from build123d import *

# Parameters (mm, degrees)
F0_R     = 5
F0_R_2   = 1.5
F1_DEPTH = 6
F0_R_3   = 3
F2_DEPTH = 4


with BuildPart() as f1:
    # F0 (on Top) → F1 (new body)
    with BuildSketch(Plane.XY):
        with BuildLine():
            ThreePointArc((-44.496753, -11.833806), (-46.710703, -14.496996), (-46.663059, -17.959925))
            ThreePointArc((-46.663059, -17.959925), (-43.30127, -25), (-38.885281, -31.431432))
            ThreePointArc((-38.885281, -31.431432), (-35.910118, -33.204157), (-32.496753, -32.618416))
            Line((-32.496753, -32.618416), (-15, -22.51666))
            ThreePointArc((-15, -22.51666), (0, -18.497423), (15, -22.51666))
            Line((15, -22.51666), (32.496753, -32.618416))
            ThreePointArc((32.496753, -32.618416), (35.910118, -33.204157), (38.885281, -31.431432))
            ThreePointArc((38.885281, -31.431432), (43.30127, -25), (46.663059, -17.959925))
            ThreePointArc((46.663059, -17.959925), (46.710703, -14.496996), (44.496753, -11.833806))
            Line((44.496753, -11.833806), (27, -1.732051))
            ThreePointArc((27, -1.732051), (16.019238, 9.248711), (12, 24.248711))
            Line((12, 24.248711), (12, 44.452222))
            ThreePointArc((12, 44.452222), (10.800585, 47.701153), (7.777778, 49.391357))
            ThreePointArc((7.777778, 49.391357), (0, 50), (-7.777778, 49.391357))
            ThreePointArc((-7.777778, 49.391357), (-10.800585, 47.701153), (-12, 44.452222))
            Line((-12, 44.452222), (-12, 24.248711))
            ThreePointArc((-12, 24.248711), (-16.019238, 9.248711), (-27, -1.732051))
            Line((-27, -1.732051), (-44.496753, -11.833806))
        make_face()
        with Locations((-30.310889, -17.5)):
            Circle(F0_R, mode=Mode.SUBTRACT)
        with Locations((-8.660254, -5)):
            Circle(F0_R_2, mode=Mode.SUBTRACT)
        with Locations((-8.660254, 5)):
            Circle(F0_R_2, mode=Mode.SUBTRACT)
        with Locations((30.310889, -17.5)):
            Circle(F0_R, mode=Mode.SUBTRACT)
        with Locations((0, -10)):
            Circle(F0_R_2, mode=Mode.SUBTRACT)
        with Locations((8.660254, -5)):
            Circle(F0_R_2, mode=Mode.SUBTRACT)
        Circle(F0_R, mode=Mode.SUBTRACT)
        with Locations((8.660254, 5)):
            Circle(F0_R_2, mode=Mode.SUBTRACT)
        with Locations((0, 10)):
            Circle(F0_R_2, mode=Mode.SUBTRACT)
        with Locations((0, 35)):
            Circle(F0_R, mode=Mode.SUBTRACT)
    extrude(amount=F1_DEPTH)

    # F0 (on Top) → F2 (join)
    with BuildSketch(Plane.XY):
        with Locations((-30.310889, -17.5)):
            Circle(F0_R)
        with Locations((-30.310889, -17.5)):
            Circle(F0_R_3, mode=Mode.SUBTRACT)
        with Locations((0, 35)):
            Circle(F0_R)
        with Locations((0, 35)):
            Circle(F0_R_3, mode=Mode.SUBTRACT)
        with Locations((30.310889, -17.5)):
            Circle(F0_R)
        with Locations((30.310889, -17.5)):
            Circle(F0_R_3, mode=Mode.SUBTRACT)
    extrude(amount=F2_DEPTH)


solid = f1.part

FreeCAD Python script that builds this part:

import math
import FreeCAD as App
import Part
import Sketcher

V = App.Vector
Q = App.Units.Quantity

doc = App.newDocument("Part")
body = doc.addObject("PartDesign::Body", "Body")

# Sketch on XY plane
sketch1 = body.newObject("Sketcher::SketchObject", "Sketch")
sketch1.AttachmentSupport = (doc.getObject("XY_Plane"), [""])
sketch1.MapMode = "FlatFace"
sketch1.addGeometry(Part.ArcOfCircle(Part.Circle(V(-41.996755, -16.163932, 0), V(0, 0, 1), 4.999999), math.radians(119.999988), math.radians(201.050989)), False)
sketch1.addGeometry(Part.ArcOfCircle(Part.Circle(V(0.000004, 0.000002, 0), V(0, 0, 1), 50.000004), math.radians(-158.949018), math.radians(-141.050983)), False)
sketch1.addGeometry(Part.ArcOfCircle(Part.Circle(V(-34.996752, -28.288287, 0), V(0, 0, 1), 5.000001), math.radians(-141.050968), math.radians(-60.000017)), False)
sketch1.addGeometry(Part.LineSegment(V(-32.496753, -32.618416, 0), V(-15, -22.51666, 0)), False)
sketch1.addGeometry(Part.ArcOfCircle(Part.Circle(V(0, -48.497429, 0), V(0, 0, 1), 30.000006), math.radians(60.000006), math.radians(119.999994)), False)
sketch1.addGeometry(Part.LineSegment(V(15, -22.51666, 0), V(32.496753, -32.618416, 0)), False)
sketch1.addGeometry(Part.ArcOfCircle(Part.Circle(V(34.996752, -28.288287, 0), V(0, 0, 1), 5.000001), math.radians(-119.999983), math.radians(-38.949032)), False)
sketch1.addGeometry(Part.ArcOfCircle(Part.Circle(V(-0.000004, 0.000002, 0), V(0, 0, 1), 50.000004), math.radians(-38.949017), math.radians(-21.050982)), False)
sketch1.addGeometry(Part.ArcOfCircle(Part.Circle(V(41.996755, -16.163932, 0), V(0, 0, 1), 4.999999), math.radians(-21.050989), math.radians(60.000012)), False)
sketch1.addGeometry(Part.LineSegment(V(44.496753, -11.833806, 0), V(27, -1.732051, 0)), False)
sketch1.addGeometry(Part.ArcOfCircle(Part.Circle(V(42, 24.248711, 0), V(0, 0, 1), 30), math.radians(-179.999999), math.radians(-120)), False)
sketch1.addGeometry(Part.LineSegment(V(12, 24.248711, 0), V(12, 44.452222, 0)), False)
sketch1.addGeometry(Part.ArcOfCircle(Part.Circle(V(7.000001, 44.452222, 0), V(0, 0, 1), 4.999999), math.radians(-0.000003), math.radians(81.05099)), False)
sketch1.addGeometry(Part.ArcOfCircle(Part.Circle(V(0, 0.000019, 0), V(0, 0, 1), 49.999981), math.radians(81.050978), math.radians(98.949022)), False)
sketch1.addGeometry(Part.ArcOfCircle(Part.Circle(V(-7.000001, 44.452222, 0), V(0, 0, 1), 4.999999), math.radians(98.94901), math.radians(180.000003)), False)
sketch1.addGeometry(Part.LineSegment(V(-12, 44.452222, 0), V(-12, 24.248711, 0)), False)
sketch1.addGeometry(Part.ArcOfCircle(Part.Circle(V(-42, 24.248711, 0), V(0, 0, 1), 30), math.radians(-60), math.radians(-0.000001)), False)
sketch1.addGeometry(Part.LineSegment(V(-27, -1.732051, 0), V(-44.496753, -11.833806, 0)), False)
sketch1.addGeometry(Part.Circle(V(-30.310889, -17.5, 0), V(0, 0, 1), 5), False)
sketch1.addGeometry(Part.Circle(V(-8.660254, -5, 0), V(0, 0, 1), 1.5), False)
sketch1.addGeometry(Part.Circle(V(-8.660254, 5, 0), V(0, 0, 1), 1.5), False)
sketch1.addGeometry(Part.Circle(V(0, -10, 0), V(0, 0, 1), 1.5), False)
sketch1.addGeometry(Part.Circle(V(30.310889, -17.5, 0), V(0, 0, 1), 5), False)
sketch1.addGeometry(Part.Circle(V(8.660254, -5, 0), V(0, 0, 1), 1.5), False)
sketch1.addGeometry(Part.Circle(V(0, 0, 0), V(0, 0, 1), 5), False)
sketch1.addGeometry(Part.Circle(V(8.660254, 5, 0), V(0, 0, 1), 1.5), False)
sketch1.addGeometry(Part.Circle(V(0, 10, 0), V(0, 0, 1), 1.5), False)
sketch1.addGeometry(Part.Circle(V(0, 35, 0), V(0, 0, 1), 5), False)
sketch1.addConstraint(Sketcher.Constraint("Tangent", 0, 2, 1, 1))
sketch1.addConstraint(Sketcher.Constraint("Tangent", 1, 2, 2, 1))
sketch1.addConstraint(Sketcher.Constraint("Tangent", 2, 2, 3, 1))
sketch1.addConstraint(Sketcher.Constraint("Tangent", 3, 2, 4, 2))
sketch1.addConstraint(Sketcher.Constraint("Tangent", 4, 1, 5, 1))
sketch1.addConstraint(Sketcher.Constraint("Tangent", 5, 2, 6, 1))
sketch1.addConstraint(Sketcher.Constraint("Tangent", 6, 2, 7, 1))
sketch1.addConstraint(Sketcher.Constraint("Tangent", 7, 2, 8, 1))
sketch1.addConstraint(Sketcher.Constraint("Tangent", 8, 2, 9, 1))
sketch1.addConstraint(Sketcher.Constraint("Tangent", 9, 2, 10, 2))
sketch1.addConstraint(Sketcher.Constraint("Tangent", 10, 1, 11, 1))
sketch1.addConstraint(Sketcher.Constraint("Tangent", 11, 2, 12, 1))
sketch1.addConstraint(Sketcher.Constraint("Tangent", 12, 2, 13, 1))
sketch1.addConstraint(Sketcher.Constraint("Tangent", 13, 2, 14, 1))
sketch1.addConstraint(Sketcher.Constraint("Tangent", 14, 2, 15, 1))
sketch1.addConstraint(Sketcher.Constraint("Tangent", 15, 2, 16, 2))
sketch1.addConstraint(Sketcher.Constraint("Tangent", 16, 1, 17, 1))
sketch1.addConstraint(Sketcher.Constraint("Tangent", 17, 2, 0, 1))
sketch1.addConstraint(Sketcher.Constraint("Vertical", 11))
sketch1.addConstraint(Sketcher.Constraint("Vertical", 15))
sketch1.addConstraint(Sketcher.Constraint("Coincident", 1, 3, -1, 1))
sketch1.addConstraint(Sketcher.Constraint("Coincident", 7, 3, -1, 1))
sketch1.addConstraint(Sketcher.Constraint("Coincident", 24, 3, -1, 1))
sketch1.addConstraint(Sketcher.Constraint("Equal", 2, 6))
sketch1.addConstraint(Sketcher.Constraint("Equal", 1, 7))
sketch1.addConstraint(Sketcher.Constraint("Equal", 0, 8))
sketch1.addConstraint(Sketcher.Constraint("Equal", 8, 12))
sketch1.addConstraint(Sketcher.Constraint("Equal", 12, 14))
sketch1.addConstraint(Sketcher.Constraint("Equal", 10, 16))
sketch1.addConstraint(Sketcher.Constraint("Equal", 14, 18))
sketch1.addConstraint(Sketcher.Constraint("Equal", 19, 20))
sketch1.addConstraint(Sketcher.Constraint("Equal", 20, 21))
sketch1.addConstraint(Sketcher.Constraint("Equal", 18, 22))
sketch1.addConstraint(Sketcher.Constraint("Equal", 21, 23))
sketch1.addConstraint(Sketcher.Constraint("Equal", 22, 24))
sketch1.addConstraint(Sketcher.Constraint("Equal", 23, 25))
sketch1.addConstraint(Sketcher.Constraint("Equal", 25, 26))
sketch1.addConstraint(Sketcher.Constraint("Equal", 24, 27))
sketch1.addConstraint(Sketcher.Constraint("Symmetric", 20, 3, 23, 3, -1, 1))
sketch1.addConstraint(Sketcher.Constraint("Symmetric", 19, 3, 25, 3, -1, 1))
sketch1.addConstraint(Sketcher.Constraint("Symmetric", 21, 3, 26, 3, -1, 1))
sketch1.addConstraint(Sketcher.Constraint("Symmetric", 12, 3, 14, 3, -2))
sketch1.addConstraint(Sketcher.Constraint("Symmetric", 18, 3, 22, 3, -2))
sketch1.addConstraint(Sketcher.Constraint("Symmetric", 19, 3, 23, 3, -2))
sketch1.addConstraint(Sketcher.Constraint("Symmetric", 3, 2, 4, 1, -2))
sketch1.addConstraint(Sketcher.Constraint("Symmetric", 9, 2, 16, 1, -2))
sketch1.addConstraint(Sketcher.Constraint("PointOnObject", 21, 3, -2))
sketch1.addConstraint(Sketcher.Constraint("PointOnObject", 27, 3, -2))
sketch1.addConstraint(Sketcher.Constraint("Parallel", 5, 9))
sketch1.addConstraint(Sketcher.Constraint("Equal", 5, 9))
sketch1.addConstraint(Sketcher.Constraint("Diameter", 18, 10.0))
sketch1.addConstraint(Sketcher.Constraint("Diameter", 19, 3.0))
sketch1.addConstraint(Sketcher.Constraint("Radius", 2, 5.000001))
sketch1.addConstraint(Sketcher.Constraint("Radius", 10, 30.0))
sketch1.addConstraint(Sketcher.Constraint("Angle", 3, Q("30.000002 deg")))
sketch1.addConstraint(Sketcher.Constraint("DistanceX", -1, 1, 10, 3, 42.0))
sketch1.addConstraint(Sketcher.Constraint("DistanceY", 19, 3, -1, 1, 5.0))
sketch1.addConstraint(Sketcher.Constraint("DistanceY", 21, 3, -1, 1, 10.0))
sketch1.addConstraint(Sketcher.Constraint("DistanceY", -1, 1, 27, 3, 35.0))
sketch1.addConstraint(Sketcher.Constraint("DistanceX", 3, 2, -1, 1, 15.0))
sketch1.addConstraint(Sketcher.Constraint("DistanceY", 18, 3, -1, 1, 17.5))
sketch1.addConstraint(Sketcher.Constraint("Radius", 13, 49.999981))
sketch1.addConstraint(Sketcher.Constraint("Radius", 1, 50.000004))
sketch1.addConstraint(Sketcher.Constraint("DistanceY", 6, 3, 10, 3, 52.536998))
sketch1.addConstraint(Sketcher.Constraint("DistanceY", 11, 1, 11, 2, 20.203511))
sketch1.addConstraint(Sketcher.Constraint("DistanceX", 2, 3, 19, 3, 26.336498))
sketch1.addConstraint(Sketcher.Constraint("DistanceX", 18, 3, -1, 1, 30.310889))
pad1 = body.newObject("PartDesign::Pad", "Pad")
pad1.Profile = sketch1
pad1.Length = 6

# Sketch on XY plane
sketch2 = body.newObject("Sketcher::SketchObject", "Sketch001")
sketch2.AttachmentSupport = (doc.getObject("XY_Plane"), [""])
sketch2.MapMode = "FlatFace"
sketch2.addGeometry(Part.Circle(V(-30.310889, -17.5, 0), V(0, 0, 1), 5), False)
sketch2.addGeometry(Part.Circle(V(-30.310889, -17.5, 0), V(0, 0, 1), 3), False)
sketch2.addGeometry(Part.Circle(V(0, 35, 0), V(0, 0, 1), 5), False)
sketch2.addGeometry(Part.Circle(V(0, 35, 0), V(0, 0, 1), 3), False)
sketch2.addGeometry(Part.Circle(V(30.310889, -17.5, 0), V(0, 0, 1), 5), False)
sketch2.addGeometry(Part.Circle(V(30.310889, -17.5, 0), V(0, 0, 1), 3), False)
sketch2.addConstraint(Sketcher.Constraint("Coincident", 1, 3, 0, 3))
sketch2.addConstraint(Sketcher.Constraint("Coincident", 3, 3, 2, 3))
sketch2.addConstraint(Sketcher.Constraint("Coincident", 5, 3, 4, 3))
sketch2.addConstraint(Sketcher.Constraint("Equal", 0, 2))
sketch2.addConstraint(Sketcher.Constraint("Equal", 1, 3))
sketch2.addConstraint(Sketcher.Constraint("Equal", 2, 4))
sketch2.addConstraint(Sketcher.Constraint("Equal", 3, 5))
sketch2.addConstraint(Sketcher.Constraint("Symmetric", 0, 3, 4, 3, -2))
sketch2.addConstraint(Sketcher.Constraint("PointOnObject", 2, 3, -2))
sketch2.addConstraint(Sketcher.Constraint("Diameter", 0, 10.0))
sketch2.addConstraint(Sketcher.Constraint("Diameter", 1, 6.0))
sketch2.addConstraint(Sketcher.Constraint("DistanceY", -1, 1, 2, 3, 35.0))
sketch2.addConstraint(Sketcher.Constraint("DistanceY", 0, 3, -1, 1, 17.5))
sketch2.addConstraint(Sketcher.Constraint("DistanceX", 0, 3, -1, 1, 30.310889))
pad2 = body.newObject("PartDesign::Pad", "Pad001")
pad2.Profile = sketch2
pad2.Length = 4

doc.recompute()
